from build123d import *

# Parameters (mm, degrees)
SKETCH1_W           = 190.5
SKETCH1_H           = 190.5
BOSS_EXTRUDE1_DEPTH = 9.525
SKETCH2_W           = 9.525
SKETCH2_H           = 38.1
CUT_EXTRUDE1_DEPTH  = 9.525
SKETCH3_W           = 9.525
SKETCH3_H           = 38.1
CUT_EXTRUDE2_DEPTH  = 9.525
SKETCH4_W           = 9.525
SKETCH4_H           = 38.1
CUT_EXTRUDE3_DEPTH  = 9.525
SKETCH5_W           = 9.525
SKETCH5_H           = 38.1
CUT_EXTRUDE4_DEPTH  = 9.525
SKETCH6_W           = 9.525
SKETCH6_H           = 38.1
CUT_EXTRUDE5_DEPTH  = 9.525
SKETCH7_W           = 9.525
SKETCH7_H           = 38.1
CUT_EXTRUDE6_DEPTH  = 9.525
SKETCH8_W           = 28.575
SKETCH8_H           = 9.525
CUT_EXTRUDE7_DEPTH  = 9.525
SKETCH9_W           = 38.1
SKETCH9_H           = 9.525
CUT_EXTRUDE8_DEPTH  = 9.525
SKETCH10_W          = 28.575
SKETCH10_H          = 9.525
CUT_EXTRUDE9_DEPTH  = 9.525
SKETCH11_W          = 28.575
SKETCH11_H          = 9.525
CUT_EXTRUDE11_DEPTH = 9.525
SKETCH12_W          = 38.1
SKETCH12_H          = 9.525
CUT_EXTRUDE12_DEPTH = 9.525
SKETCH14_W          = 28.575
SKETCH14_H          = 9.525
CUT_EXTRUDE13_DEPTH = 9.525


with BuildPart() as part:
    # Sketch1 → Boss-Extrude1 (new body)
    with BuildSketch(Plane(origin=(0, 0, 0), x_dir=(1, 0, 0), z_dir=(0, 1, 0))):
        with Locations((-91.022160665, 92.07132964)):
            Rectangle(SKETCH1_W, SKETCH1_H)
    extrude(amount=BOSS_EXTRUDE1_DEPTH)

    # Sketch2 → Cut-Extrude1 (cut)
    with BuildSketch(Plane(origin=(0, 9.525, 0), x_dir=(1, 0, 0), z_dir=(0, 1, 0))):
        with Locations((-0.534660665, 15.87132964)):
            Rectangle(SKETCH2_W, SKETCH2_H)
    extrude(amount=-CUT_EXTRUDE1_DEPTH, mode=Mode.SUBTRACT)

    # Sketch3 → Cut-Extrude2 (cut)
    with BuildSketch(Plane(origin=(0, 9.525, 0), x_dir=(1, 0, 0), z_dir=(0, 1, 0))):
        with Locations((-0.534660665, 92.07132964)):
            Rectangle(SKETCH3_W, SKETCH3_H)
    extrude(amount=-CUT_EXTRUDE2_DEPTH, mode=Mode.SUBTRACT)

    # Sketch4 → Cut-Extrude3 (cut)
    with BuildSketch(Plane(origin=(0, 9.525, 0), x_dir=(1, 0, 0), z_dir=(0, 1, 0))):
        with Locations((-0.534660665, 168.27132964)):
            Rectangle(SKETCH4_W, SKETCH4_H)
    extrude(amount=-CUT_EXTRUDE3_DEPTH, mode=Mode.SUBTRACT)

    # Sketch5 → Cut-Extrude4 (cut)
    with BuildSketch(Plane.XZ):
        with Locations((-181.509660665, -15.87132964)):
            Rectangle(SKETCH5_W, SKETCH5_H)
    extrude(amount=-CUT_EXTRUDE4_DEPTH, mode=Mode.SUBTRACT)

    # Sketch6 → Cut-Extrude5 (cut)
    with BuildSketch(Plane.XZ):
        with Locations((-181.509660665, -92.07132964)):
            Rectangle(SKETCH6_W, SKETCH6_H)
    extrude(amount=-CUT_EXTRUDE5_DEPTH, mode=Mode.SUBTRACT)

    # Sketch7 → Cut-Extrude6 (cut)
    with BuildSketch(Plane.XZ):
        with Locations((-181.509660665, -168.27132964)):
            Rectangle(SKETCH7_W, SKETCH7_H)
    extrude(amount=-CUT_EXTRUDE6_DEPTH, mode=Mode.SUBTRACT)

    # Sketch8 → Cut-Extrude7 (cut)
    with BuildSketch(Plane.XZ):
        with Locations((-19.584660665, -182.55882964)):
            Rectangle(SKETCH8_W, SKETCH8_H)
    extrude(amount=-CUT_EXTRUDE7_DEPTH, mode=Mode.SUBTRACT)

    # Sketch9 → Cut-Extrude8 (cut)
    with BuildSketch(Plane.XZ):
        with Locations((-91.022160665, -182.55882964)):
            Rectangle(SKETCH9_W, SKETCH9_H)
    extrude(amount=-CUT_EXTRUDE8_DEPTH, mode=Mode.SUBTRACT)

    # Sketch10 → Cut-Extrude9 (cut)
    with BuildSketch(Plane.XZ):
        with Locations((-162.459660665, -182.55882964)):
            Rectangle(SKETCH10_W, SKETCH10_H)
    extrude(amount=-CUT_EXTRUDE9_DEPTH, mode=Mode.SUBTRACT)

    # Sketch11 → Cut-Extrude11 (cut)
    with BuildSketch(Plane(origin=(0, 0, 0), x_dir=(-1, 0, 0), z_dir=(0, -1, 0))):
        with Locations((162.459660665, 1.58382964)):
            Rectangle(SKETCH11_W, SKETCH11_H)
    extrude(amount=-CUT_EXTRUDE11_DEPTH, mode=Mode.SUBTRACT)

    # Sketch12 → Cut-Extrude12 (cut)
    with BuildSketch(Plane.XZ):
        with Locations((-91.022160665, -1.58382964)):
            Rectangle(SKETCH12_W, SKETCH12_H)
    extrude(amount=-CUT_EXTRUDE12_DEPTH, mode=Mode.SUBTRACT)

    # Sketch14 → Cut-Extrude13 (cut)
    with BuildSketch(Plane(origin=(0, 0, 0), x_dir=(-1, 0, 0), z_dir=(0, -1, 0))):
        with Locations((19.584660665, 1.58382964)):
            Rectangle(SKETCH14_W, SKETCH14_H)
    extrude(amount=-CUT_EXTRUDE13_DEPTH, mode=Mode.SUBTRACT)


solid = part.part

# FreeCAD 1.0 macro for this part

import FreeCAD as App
import Part
import Sketcher
Q = App.Units.Quantity

doc = App.newDocument("Part")
body = doc.addObject("PartDesign::Body", "Body")

# Sketch on XZ plane
sketch1 = body.newObject("Sketcher::SketchObject", "Sketch")
sketch1.AttachmentSupport = (doc.getObject("XZ_Plane"), [""])
sketch1.MapMode = "FlatFace"
sketch1.addGeometry(Part.LineSegment(App.Vector(-186, -187, 0), App.Vector(-186, 3, 0)), False)
sketch1.addGeometry(Part.LineSegment(App.Vector(-186, 3, 0), App.Vector(4, 3, 0)), False)
sketch1.addGeometry(Part.LineSegment(App.Vector(4, 3, 0), App.Vector(4, -187, 0)), False)
sketch1.addGeometry(Part.LineSegment(App.Vector(4, -187, 0), App.Vector(-186, -187, 0)), False)
sketch1.addConstraint(Sketcher.Constraint("Coincident", 0, 2, 1, 1))
sketch1.addConstraint(Sketcher.Constraint("Coincident", 1, 2, 2, 1))
sketch1.addConstraint(Sketcher.Constraint("Coincident", 2, 2, 3, 1))
sketch1.addConstraint(Sketcher.Constraint("Coincident", 3, 2, 0, 1))
sketch1.addConstraint(Sketcher.Constraint("Vertical", 0))
sketch1.addConstraint(Sketcher.Constraint("Horizontal", 1))
sketch1.addConstraint(Sketcher.Constraint("Vertical", 2))
sketch1.addConstraint(Sketcher.Constraint("Horizontal", 3))
sketch1.addConstraint(Sketcher.Constraint("Equal", 3, 0))
sketch1.addConstraint(Sketcher.Constraint("DistanceX", 1, 1, 1, 2, Q("7.5 in")))
sketch1.addConstraint(Sketcher.Constraint("DistanceX", 0, 2, -1, 1, 186.272161))
sketch1.addConstraint(Sketcher.Constraint("DistanceY", -1, 1, 0, 2, 3.17867))
pad1 = body.newObject("PartDesign::Pad", "Pad")
pad1.Profile = sketch1
pad1.Length = Q("0.375 in")
pad1.Reversed = True

# Sketch on XZ plane
sketch2 = body.newObject("Sketcher::SketchObject", "Sketch001")
sketch2.AttachmentSupport = (doc.getObject("XZ_Plane"), [""])
sketch2.MapMode = "FlatFace"
sketch2.AttachmentOffset = App.Placement(App.Vector(0, 0, -0.375 * 25.4), App.Rotation())
sketch2.addGeometry(Part.LineSegment(App.Vector(-5, -35, 0), App.Vector(-5, 3, 0)), False)
sketch2.addGeometry(Part.LineSegment(App.Vector(-5, 3, 0), App.Vector(4, 3, 0)), False)
sketch2.addGeometry(Part.LineSegment(App.Vector(4, 3, 0), App.Vector(4, -35, 0)), False)
sketch2.addGeometry(Part.LineSegment(App.Vector(4, -35, 0), App.Vector(-5, -35, 0)), False)
sketch2.addConstraint(Sketcher.Constraint("Coincident", 0, 2, 1, 1))
sketch2.addConstraint(Sketcher.Constraint("Coincident", 1, 2, 2, 1))
sketch2.addConstraint(Sketcher.Constraint("Coincident", 2, 2, 3, 1))
sketch2.addConstraint(Sketcher.Constraint("Coincident", 3, 2, 0, 1))
sketch2.addConstraint(Sketcher.Constraint("Vertical", 0))
sketch2.addConstraint(Sketcher.Constraint("Horizontal", 1))
sketch2.addConstraint(Sketcher.Constraint("Vertical", 2))
sketch2.addConstraint(Sketcher.Constraint("Horizontal", 3))
sketch2.addConstraint(Sketcher.Constraint("DistanceY", 0, 1, 0, 2, Q("1.5 in")))
sketch2.addConstraint(Sketcher.Constraint("DistanceX", 1, 1, 1, 2, Q("0.375 in")))
sketch2.addConstraint(Sketcher.Constraint("DistanceX", 0, 2, -1, 1, 5.297161))
sketch2.addConstraint(Sketcher.Constraint("DistanceY", -1, 1, 0, 2, 3.17867))
pocket1 = body.newObject("PartDesign::Pocket", "Pocket")
pocket1.Profile = sketch2
pocket1.Length = Q("0.375 in")
pocket1.Reversed = True

# Sketch on XZ plane
sketch3 = body.newObject("Sketcher::SketchObject", "Sketch002")
sketch3.AttachmentSupport = (doc.getObject("XZ_Plane"), [""])
sketch3.MapMode = "FlatFace"
sketch3.AttachmentOffset = App.Placement(App.Vector(0, 0, -0.375 * 25.4), App.Rotation())
sketch3.addGeometry(Part.LineSegment(App.Vector(-5, -111, 0), App.Vector(-5, -73, 0)), False)
sketch3.addGeometry(Part.LineSegment(App.Vector(-5, -73, 0), App.Vector(4, -73, 0)), False)
sketch3.addGeometry(Part.LineSegment(App.Vector(4, -73, 0), App.Vector(4, -111, 0)), False)
sketch3.addGeometry(Part.LineSegment(App.Vector(4, -111, 0), App.Vector(-5, -111, 0)), False)
sketch3.addConstraint(Sketcher.Constraint("Coincident", 0, 2, 1, 1))
sketch3.addConstraint(Sketcher.Constraint("Coincident", 1, 2, 2, 1))
sketch3.addConstraint(Sketcher.Constraint("Coincident", 2, 2, 3, 1))
sketch3.addConstraint(Sketcher.Constraint("Coincident", 3, 2, 0, 1))
sketch3.addConstraint(Sketcher.Constraint("Vertical", 0))
sketch3.addConstraint(Sketcher.Constraint("Horizontal", 1))
sketch3.addConstraint(Sketcher.Constraint("Vertical", 2))
sketch3.addConstraint(Sketcher.Constraint("Horizontal", 3))
sketch3.addConstraint(Sketcher.Constraint("DistanceY", 0, 1, 0, 2, Q("1.5 in")))
sketch3.addConstraint(Sketcher.Constraint("DistanceX", 1, 1, 1, 2, Q("0.375 in")))
sketch3.addConstraint(Sketcher.Constraint("DistanceX", 0, 2, -1, 1, 5.297161))
sketch3.addConstraint(Sketcher.Constraint("DistanceY", 0, 2, -1, 1, 73.02133))
pocket2 = body.newObject("PartDesign::Pocket", "Pocket001")
pocket2.Profile = sketch3
pocket2.Length = Q("0.375 in")
pocket2.Reversed = True

# Sketch on XZ plane
sketch4 = body.newObject("Sketcher::SketchObject", "Sketch003")
sketch4.AttachmentSupport = (doc.getObject("XZ_Plane"), [""])
sketch4.MapMode = "FlatFace"
sketch4.AttachmentOffset = App.Placement(App.Vector(0, 0, -0.375 * 25.4), App.Rotation())
sketch4.addGeometry(Part.LineSegment(App.Vector(-5, -187, 0), App.Vector(-5, -149, 0)), False)
sketch4.addGeometry(Part.LineSegment(App.Vector(-5, -149, 0), App.Vector(4, -149, 0)), False)
sketch4.addGeometry(Part.LineSegment(App.Vector(4, -149, 0), App.Vector(4, -187, 0)), False)
sketch4.addGeometry(Part.LineSegment(App.Vector(4, -187, 0), App.Vector(-5, -187, 0)), False)
sketch4.addConstraint(Sketcher.Constraint("Coincident", 0, 2, 1, 1))
sketch4.addConstraint(Sketcher.Constraint("Coincident", 1, 2, 2, 1))
sketch4.addConstraint(Sketcher.Constraint("Coincident", 2, 2, 3, 1))
sketch4.addConstraint(Sketcher.Constraint("Coincident", 3, 2, 0, 1))
sketch4.addConstraint(Sketcher.Constraint("Vertical", 0))
sketch4.addConstraint(Sketcher.Constraint("Horizontal", 1))
sketch4.addConstraint(Sketcher.Constraint("Vertical", 2))
sketch4.addConstraint(Sketcher.Constraint("Horizontal", 3))
sketch4.addConstraint(Sketcher.Constraint("DistanceY", 0, 1, 0, 2, Q("1.5 in")))
sketch4.addConstraint(Sketcher.Constraint("DistanceX", 1, 1, 1, 2, Q("0.375 in")))
sketch4.addConstraint(Sketcher.Constraint("DistanceX", 0, 2, -1, 1, 5.297161))
sketch4.addConstraint(Sketcher.Constraint("DistanceY", 0, 2, -1, 1, 149.22133))
pocket3 = body.newObject("PartDesign::Pocket", "Pocket002")
pocket3.Profile = sketch4
pocket3.Length = Q("0.375 in")
pocket3.Reversed = True

# Sketch on XZ plane
sketch5 = body.newObject("Sketcher::SketchObject", "Sketch004")
sketch5.AttachmentSupport = (doc.getObject("XZ_Plane"), [""])
sketch5.MapMode = "FlatFace"
sketch5.addGeometry(Part.LineSegment(App.Vector(-186, 3, 0), App.Vector(-186, -35, 0)), False)
sketch5.addGeometry(Part.LineSegment(App.Vector(-186, -35, 0), App.Vector(-177, -35, 0)), False)
sketch5.addGeometry(Part.LineSegment(App.Vector(-177, -35, 0), App.Vector(-177, 3, 0)), False)
sketch5.addGeometry(Part.LineSegment(App.Vector(-177, 3, 0), App.Vector(-186, 3, 0)), False)
sketch5.addConstraint(Sketcher.Constraint("Coincident", 0, 2, 1, 1))
sketch5.addConstraint(Sketcher.Constraint("Coincident", 1, 2, 2, 1))
sketch5.addConstraint(Sketcher.Constraint("Coincident", 2, 2, 3, 1))
sketch5.addConstraint(Sketcher.Constraint("Coincident", 3, 2, 0, 1))
sketch5.addConstraint(Sketcher.Constraint("Vertical", 0))
sketch5.addConstraint(Sketcher.Constraint("Horizontal", 1))
sketch5.addConstraint(Sketcher.Constraint("Vertical", 2))
sketch5.addConstraint(Sketcher.Constraint("Horizontal", 3))
sketch5.addConstraint(Sketcher.Constraint("DistanceY", 0, 2, 0, 1, Q("1.5 in")))
sketch5.addConstraint(Sketcher.Constraint("DistanceX", 1, 1, 1, 2, Q("0.375 in")))
sketch5.addConstraint(Sketcher.Constraint("DistanceX", 0, 2, -1, 1, 186.272161))
sketch5.addConstraint(Sketcher.Constraint("DistanceY", 0, 2, -1, 1, 34.92133))
pocket4 = body.newObject("PartDesign::Pocket", "Pocket003")
pocket4.Profile = sketch5
pocket4.Length = Q("0.375 in")

# Sketch on XZ plane
sketch6 = body.newObject("Sketcher::SketchObject", "Sketch005")
sketch6.AttachmentSupport = (doc.getObject("XZ_Plane"), [""])
sketch6.MapMode = "FlatFace"
sketch6.addGeometry(Part.LineSegment(App.Vector(-186, -73, 0), App.Vector(-186, -111, 0)), False)
sketch6.addGeometry(Part.LineSegment(App.Vector(-186, -111, 0), App.Vector(-177, -111, 0)), False)
sketch6.addGeometry(Part.LineSegment(App.Vector(-177, -111, 0), App.Vector(-177, -73, 0)), False)
sketch6.addGeometry(Part.LineSegment(App.Vector(-177, -73, 0), App.Vector(-186, -73, 0)), False)
sketch6.addConstraint(Sketcher.Constraint("Coincident", 0, 2, 1, 1))
sketch6.addConstraint(Sketcher.Constraint("Coincident", 1, 2, 2, 1))
sketch6.addConstraint(Sketcher.Constraint("Coincident", 2, 2, 3, 1))
sketch6.addConstraint(Sketcher.Constraint("Coincident", 3, 2, 0, 1))
sketch6.addConstraint(Sketcher.Constraint("Vertical", 0))
sketch6.addConstraint(Sketcher.Constraint("Horizontal", 1))
sketch6.addConstraint(Sketcher.Constraint("Vertical", 2))
sketch6.addConstraint(Sketcher.Constraint("Horizontal", 3))
sketch6.addConstraint(Sketcher.Constraint("DistanceY", 0, 2, 0, 1, Q("1.5 in")))
sketch6.addConstraint(Sketcher.Constraint("DistanceX", 1, 1, 1, 2, Q("0.375 in")))
sketch6.addConstraint(Sketcher.Constraint("DistanceX", 0, 2, -1, 1, 186.272161))
sketch6.addConstraint(Sketcher.Constraint("DistanceY", 0, 2, -1, 1, 111.12133))
pocket5 = body.newObject("PartDesign::Pocket", "Pocket004")
pocket5.Profile = sketch6
pocket5.Length = Q("0.375 in")

# Sketch on XZ plane
sketch7 = body.newObject("Sketcher::SketchObject", "Sketch006")
sketch7.AttachmentSupport = (doc.getObject("XZ_Plane"), [""])
sketch7.MapMode = "FlatFace"
sketch7.addGeometry(Part.LineSegment(App.Vector(-186, -149, 0), App.Vector(-186, -187, 0)), False)
sketch7.addGeometry(Part.LineSegment(App.Vector(-186, -187, 0), App.Vector(-177, -187, 0)), False)
sketch7.addGeometry(Part.LineSegment(App.Vector(-177, -187, 0), App.Vector(-177, -149, 0)), False)
sketch7.addGeometry(Part.LineSegment(App.Vector(-177, -149, 0), App.Vector(-186, -149, 0)), False)
sketch7.addConstraint(Sketcher.Constraint("Coincident", 0, 2, 1, 1))
sketch7.addConstraint(Sketcher.Constraint("Coincident", 1, 2, 2, 1))
sketch7.addConstraint(Sketcher.Constraint("Coincident", 2, 2, 3, 1))
sketch7.addConstraint(Sketcher.Constraint("Coincident", 3, 2, 0, 1))
sketch7.addConstraint(Sketcher.Constraint("Vertical", 0))
sketch7.addConstraint(Sketcher.Constraint("Horizontal", 1))
sketch7.addConstraint(Sketcher.Constraint("Vertical", 2))
sketch7.addConstraint(Sketcher.Constraint("Horizontal", 3))
sketch7.addConstraint(Sketcher.Constraint("DistanceY", 0, 2, 0, 1, Q("1.5 in")))
sketch7.addConstraint(Sketcher.Constraint("DistanceX", 1, 1, 1, 2, Q("0.375 in")))
sketch7.addConstraint(Sketcher.Constraint("DistanceX", 0, 2, -1, 1, 186.272161))
sketch7.addConstraint(Sketcher.Constraint("DistanceY", 0, 2, -1, 1, 187.32133))
pocket6 = body.newObject("PartDesign::Pocket", "Pocket005")
pocket6.Profile = sketch7
pocket6.Length = Q("0.375 in")

# Sketch on XZ plane
sketch8 = body.newObject("Sketcher::SketchObject", "Sketch007")
sketch8.AttachmentSupport = (doc.getObject("XZ_Plane"), [""])
sketch8.MapMode = "FlatFace"
sketch8.addGeometry(Part.LineSegment(App.Vector(-34, -178, 0), App.Vector(-34, -187, 0)), False)
sketch8.addGeometry(Part.LineSegment(App.Vector(-34, -187, 0), App.Vector(-5, -187, 0)), False)
sketch8.addGeometry(Part.LineSegment(App.Vector(-5, -187, 0), App.Vector(-5, -178, 0)), False)
sketch8.addGeometry(Part.LineSegment(App.Vector(-5, -178, 0), App.Vector(-34, -178, 0)), False)
sketch8.addConstraint(Sketcher.Constraint("Coincident", 0, 2, 1, 1))
sketch8.addConstraint(Sketcher.Constraint("Coincident", 1, 2, 2, 1))
sketch8.addConstraint(Sketcher.Constraint("Coincident", 2, 2, 3, 1))
sketch8.addConstraint(Sketcher.Constraint("Coincident", 3, 2, 0, 1))
sketch8.addConstraint(Sketcher.Constraint("Vertical", 0))
sketch8.addConstraint(Sketcher.Constraint("Horizontal", 1))
sketch8.addConstraint(Sketcher.Constraint("Vertical", 2))
sketch8.addConstraint(Sketcher.Constraint("Horizontal", 3))
sketch8.addConstraint(Sketcher.Constraint("DistanceX", 1, 1, 1, 2, Q("1.125 in")))
sketch8.addConstraint(Sketcher.Constraint("DistanceY", 0, 2, 0, 1, Q("0.375 in")))
sketch8.addConstraint(Sketcher.Constraint("DistanceX", 0, 2, -1, 1, 33.872161))
sketch8.addConstraint(Sketcher.Constraint("DistanceY", 0, 2, -1, 1, 187.32133))
pocket7 = body.newObject("PartDesign::Pocket", "Pocket006")
pocket7.Profile = sketch8
pocket7.Length = Q("0.375 in")

# Sketch on XZ plane
sketch9 = body.newObject("Sketcher::SketchObject", "Sketch008")
sketch9.AttachmentSupport = (doc.getObject("XZ_Plane"), [""])
sketch9.MapMode = "FlatFace"
sketch9.addGeometry(Part.LineSegment(App.Vector(-110, -178, 0), App.Vector(-110, -187, 0)), False)
sketch9.addGeometry(Part.LineSegment(App.Vector(-110, -187, 0), App.Vector(-72, -187, 0)), False)
sketch9.addGeometry(Part.LineSegment(App.Vector(-72, -187, 0), App.Vector(-72, -178, 0)), False)
sketch9.addGeometry(Part.LineSegment(App.Vector(-72, -178, 0), App.Vector(-110, -178, 0)), False)
sketch9.addConstraint(Sketcher.Constraint("Coincident", 0, 2, 1, 1))
sketch9.addConstraint(Sketcher.Constraint("Coincident", 1, 2, 2, 1))
sketch9.addConstraint(Sketcher.Constraint("Coincident", 2, 2, 3, 1))
sketch9.addConstraint(Sketcher.Constraint("Coincident", 3, 2, 0, 1))
sketch9.addConstraint(Sketcher.Constraint("Vertical", 0))
sketch9.addConstraint(Sketcher.Constraint("Horizontal", 1))
sketch9.addConstraint(Sketcher.Constraint("Vertical", 2))
sketch9.addConstraint(Sketcher.Constraint("Horizontal", 3))
sketch9.addConstraint(Sketcher.Constraint("DistanceX", 1, 1, 1, 2, Q("1.5 in")))
sketch9.addConstraint(Sketcher.Constraint("DistanceY", 0, 2, 0, 1, Q("0.375 in")))
sketch9.addConstraint(Sketcher.Constraint("DistanceX", 0, 2, -1, 1, 110.072161))
sketch9.addConstraint(Sketcher.Constraint("DistanceY", 0, 2, -1, 1, 187.32133))
pocket8 = body.newObject("PartDesign::Pocket", "Pocket007")
pocket8.Profile = sketch9
pocket8.Length = Q("0.375 in")

# Sketch on XZ plane
sketch10 = body.newObject("Sketcher::SketchObject", "Sketch009")
sketch10.AttachmentSupport = (doc.getObject("XZ_Plane"), [""])
sketch10.MapMode = "FlatFace"
sketch10.addGeometry(Part.LineSegment(App.Vector(-177, -178, 0), App.Vector(-177, -187, 0)), False)
sketch10.addGeometry(Part.LineSegment(App.Vector(-177, -187, 0), App.Vector(-148, -187, 0)), False)
sketch10.addGeometry(Part.LineSegment(App.Vector(-148, -187, 0), App.Vector(-148, -178, 0)), False)
sketch10.addGeometry(Part.LineSegment(App.Vector(-148, -178, 0), App.Vector(-177, -178, 0)), False)
sketch10.addConstraint(Sketcher.Constraint("Coincident", 0, 2, 1, 1))
sketch10.addConstraint(Sketcher.Constraint("Coincident", 1, 2, 2, 1))
sketch10.addConstraint(Sketcher.Constraint("Coincident", 2, 2, 3, 1))
sketch10.addConstraint(Sketcher.Constraint("Coincident", 3, 2, 0, 1))
sketch10.addConstraint(Sketcher.Constraint("Vertical", 0))
sketch10.addConstraint(Sketcher.Constraint("Horizontal", 1))
sketch10.addConstraint(Sketcher.Constraint("Vertical", 2))
sketch10.addConstraint(Sketcher.Constraint("Horizontal", 3))
sketch10.addConstraint(Sketcher.Constraint("DistanceX", 1, 1, 1, 2, Q("1.125 in")))
sketch10.addConstraint(Sketcher.Constraint("DistanceY", 0, 2, 0, 1, Q("0.375 in")))
sketch10.addConstraint(Sketcher.Constraint("DistanceX", 0, 2, -1, 1, 176.747161))
sketch10.addConstraint(Sketcher.Constraint("DistanceY", 0, 2, -1, 1, 187.32133))
pocket9 = body.newObject("PartDesign::Pocket", "Pocket008")
pocket9.Profile = sketch10
pocket9.Length = Q("0.375 in")

# Sketch on XZ plane
sketch11 = body.newObject("Sketcher::SketchObject", "Sketch010")
sketch11.AttachmentSupport = (doc.getObject("XZ_Plane"), [""])
sketch11.MapMode = "FlatFace"
sketch11.addGeometry(Part.LineSegment(App.Vector(-148, -6, 0), App.Vector(-148, 3, 0)), False)
sketch11.addGeometry(Part.LineSegment(App.Vector(-148, 3, 0), App.Vector(-177, 3, 0)), False)
sketch11.addGeometry(Part.LineSegment(App.Vector(-177, 3, 0), App.Vector(-177, -6, 0)), False)
sketch11.addGeometry(Part.LineSegment(App.Vector(-177, -6, 0), App.Vector(-148, -6, 0)), False)
sketch11.addConstraint(Sketcher.Constraint("Coincident", 0, 2, 1, 1))
sketch11.addConstraint(Sketcher.Constraint("Coincident", 1, 2, 2, 1))
sketch11.addConstraint(Sketcher.Constraint("Coincident", 2, 2, 3, 1))
sketch11.addConstraint(Sketcher.Constraint("Coincident", 3, 2, 0, 1))
sketch11.addConstraint(Sketcher.Constraint("Vertical", 0))
sketch11.addConstraint(Sketcher.Constraint("Horizontal", 1))
sketch11.addConstraint(Sketcher.Constraint("Vertical", 2))
sketch11.addConstraint(Sketcher.Constraint("Horizontal", 3))
sketch11.addConstraint(Sketcher.Constraint("DistanceX", 1, 2, 1, 1, Q("1.125 in")))
sketch11.addConstraint(Sketcher.Constraint("DistanceY", 0, 1, 0, 2, Q("0.375 in")))
sketch11.addConstraint(Sketcher.Constraint("DistanceX", 0, 2, -1, 1, 148.172161))
sketch11.addConstraint(Sketcher.Constraint("DistanceY", -1, 1, 0, 2, 3.17867))
pocket10 = body.newObject("PartDesign::Pocket", "Pocket009")
pocket10.Profile = sketch11
pocket10.Length = Q("0.375 in")

# Sketch on XZ plane
sketch12 = body.newObject("Sketcher::SketchObject", "Sketch011")
sketch12.AttachmentSupport = (doc.getObject("XZ_Plane"), [""])
sketch12.MapMode = "FlatFace"
sketch12.addGeometry(Part.LineSegment(App.Vector(-110, 3, 0), App.Vector(-110, -6, 0)), False)
sketch12.addGeometry(Part.LineSegment(App.Vector(-110, -6, 0), App.Vector(-72, -6, 0)), False)
sketch12.addGeometry(Part.LineSegment(App.Vector(-72, -6, 0), App.Vector(-72, 3, 0)), False)
sketch12.addGeometry(Part.LineSegment(App.Vector(-72, 3, 0), App.Vector(-110, 3, 0)), False)
sketch12.addConstraint(Sketcher.Constraint("Coincident", 0, 2, 1, 1))
sketch12.addConstraint(Sketcher.Constraint("Coincident", 1, 2, 2, 1))
sketch12.addConstraint(Sketcher.Constraint("Coincident", 2, 2, 3, 1))
sketch12.addConstraint(Sketcher.Constraint("Coincident", 3, 2, 0, 1))
sketch12.addConstraint(Sketcher.Constraint("Vertical", 0))
sketch12.addConstraint(Sketcher.Constraint("Horizontal", 1))
sketch12.addConstraint(Sketcher.Constraint("Vertical", 2))
sketch12.addConstraint(Sketcher.Constraint("Horizontal", 3))
sketch12.addConstraint(Sketcher.Constraint("DistanceX", 1, 1, 1, 2, Q("1.5 in")))
sketch12.addConstraint(Sketcher.Constraint("DistanceY", 0, 2, 0, 1, Q("0.375 in")))
sketch12.addConstraint(Sketcher.Constraint("DistanceX", 0, 2, -1, 1, 110.072161))
sketch12.addConstraint(Sketcher.Constraint("DistanceY", 0, 2, -1, 1, 6.34633))
pocket11 = body.newObject("PartDesign::Pocket", "Pocket010")
pocket11.Profile = sketch12
pocket11.Length = Q("0.375 in")

# Sketch on XZ plane
sketch13 = body.newObject("Sketcher::SketchObject", "Sketch012")
sketch13.AttachmentSupport = (doc.getObject("XZ_Plane"), [""])
sketch13.MapMode = "FlatFace"
sketch13.addGeometry(Part.LineSegment(App.Vector(-5, -6, 0), App.Vector(-5, 3, 0)), False)
sketch13.addGeometry(Part.LineSegment(App.Vector(-5, 3, 0), App.Vector(-34, 3, 0)), False)
sketch13.addGeometry(Part.LineSegment(App.Vector(-34, 3, 0), App.Vector(-34, -6, 0)), False)
sketch13.addGeometry(Part.LineSegment(App.Vector(-34, -6, 0), App.Vector(-5, -6, 0)), False)
sketch13.addConstraint(Sketcher.Constraint("Coincident", 0, 2, 1, 1))
sketch13.addConstraint(Sketcher.Constraint("Coincident", 1, 2, 2, 1))
sketch13.addConstraint(Sketcher.Constraint("Coincident", 2, 2, 3, 1))
sketch13.addConstraint(Sketcher.Constraint("Coincident", 3, 2, 0, 1))
sketch13.addConstraint(Sketcher.Constraint("Vertical", 0))
sketch13.addConstraint(Sketcher.Constraint("Horizontal", 1))
sketch13.addConstraint(Sketcher.Constraint("Vertical", 2))
sketch13.addConstraint(Sketcher.Constraint("Horizontal", 3))
sketch13.addConstraint(Sketcher.Constraint("DistanceX", 1, 2, 1, 1, Q("1.125 in")))
sketch13.addConstraint(Sketcher.Constraint("DistanceY", 0, 1, 0, 2, Q("0.375 in")))
sketch13.addConstraint(Sketcher.Constraint("DistanceX", 0, 2, -1, 1, 5.297161))
sketch13.addConstraint(Sketcher.Constraint("DistanceY", -1, 1, 0, 2, 3.17867))
pocket12 = body.newObject("PartDesign::Pocket", "Pocket011")
pocket12.Profile = sketch13
pocket12.Length = Q("0.375 in")

doc.recompute()
